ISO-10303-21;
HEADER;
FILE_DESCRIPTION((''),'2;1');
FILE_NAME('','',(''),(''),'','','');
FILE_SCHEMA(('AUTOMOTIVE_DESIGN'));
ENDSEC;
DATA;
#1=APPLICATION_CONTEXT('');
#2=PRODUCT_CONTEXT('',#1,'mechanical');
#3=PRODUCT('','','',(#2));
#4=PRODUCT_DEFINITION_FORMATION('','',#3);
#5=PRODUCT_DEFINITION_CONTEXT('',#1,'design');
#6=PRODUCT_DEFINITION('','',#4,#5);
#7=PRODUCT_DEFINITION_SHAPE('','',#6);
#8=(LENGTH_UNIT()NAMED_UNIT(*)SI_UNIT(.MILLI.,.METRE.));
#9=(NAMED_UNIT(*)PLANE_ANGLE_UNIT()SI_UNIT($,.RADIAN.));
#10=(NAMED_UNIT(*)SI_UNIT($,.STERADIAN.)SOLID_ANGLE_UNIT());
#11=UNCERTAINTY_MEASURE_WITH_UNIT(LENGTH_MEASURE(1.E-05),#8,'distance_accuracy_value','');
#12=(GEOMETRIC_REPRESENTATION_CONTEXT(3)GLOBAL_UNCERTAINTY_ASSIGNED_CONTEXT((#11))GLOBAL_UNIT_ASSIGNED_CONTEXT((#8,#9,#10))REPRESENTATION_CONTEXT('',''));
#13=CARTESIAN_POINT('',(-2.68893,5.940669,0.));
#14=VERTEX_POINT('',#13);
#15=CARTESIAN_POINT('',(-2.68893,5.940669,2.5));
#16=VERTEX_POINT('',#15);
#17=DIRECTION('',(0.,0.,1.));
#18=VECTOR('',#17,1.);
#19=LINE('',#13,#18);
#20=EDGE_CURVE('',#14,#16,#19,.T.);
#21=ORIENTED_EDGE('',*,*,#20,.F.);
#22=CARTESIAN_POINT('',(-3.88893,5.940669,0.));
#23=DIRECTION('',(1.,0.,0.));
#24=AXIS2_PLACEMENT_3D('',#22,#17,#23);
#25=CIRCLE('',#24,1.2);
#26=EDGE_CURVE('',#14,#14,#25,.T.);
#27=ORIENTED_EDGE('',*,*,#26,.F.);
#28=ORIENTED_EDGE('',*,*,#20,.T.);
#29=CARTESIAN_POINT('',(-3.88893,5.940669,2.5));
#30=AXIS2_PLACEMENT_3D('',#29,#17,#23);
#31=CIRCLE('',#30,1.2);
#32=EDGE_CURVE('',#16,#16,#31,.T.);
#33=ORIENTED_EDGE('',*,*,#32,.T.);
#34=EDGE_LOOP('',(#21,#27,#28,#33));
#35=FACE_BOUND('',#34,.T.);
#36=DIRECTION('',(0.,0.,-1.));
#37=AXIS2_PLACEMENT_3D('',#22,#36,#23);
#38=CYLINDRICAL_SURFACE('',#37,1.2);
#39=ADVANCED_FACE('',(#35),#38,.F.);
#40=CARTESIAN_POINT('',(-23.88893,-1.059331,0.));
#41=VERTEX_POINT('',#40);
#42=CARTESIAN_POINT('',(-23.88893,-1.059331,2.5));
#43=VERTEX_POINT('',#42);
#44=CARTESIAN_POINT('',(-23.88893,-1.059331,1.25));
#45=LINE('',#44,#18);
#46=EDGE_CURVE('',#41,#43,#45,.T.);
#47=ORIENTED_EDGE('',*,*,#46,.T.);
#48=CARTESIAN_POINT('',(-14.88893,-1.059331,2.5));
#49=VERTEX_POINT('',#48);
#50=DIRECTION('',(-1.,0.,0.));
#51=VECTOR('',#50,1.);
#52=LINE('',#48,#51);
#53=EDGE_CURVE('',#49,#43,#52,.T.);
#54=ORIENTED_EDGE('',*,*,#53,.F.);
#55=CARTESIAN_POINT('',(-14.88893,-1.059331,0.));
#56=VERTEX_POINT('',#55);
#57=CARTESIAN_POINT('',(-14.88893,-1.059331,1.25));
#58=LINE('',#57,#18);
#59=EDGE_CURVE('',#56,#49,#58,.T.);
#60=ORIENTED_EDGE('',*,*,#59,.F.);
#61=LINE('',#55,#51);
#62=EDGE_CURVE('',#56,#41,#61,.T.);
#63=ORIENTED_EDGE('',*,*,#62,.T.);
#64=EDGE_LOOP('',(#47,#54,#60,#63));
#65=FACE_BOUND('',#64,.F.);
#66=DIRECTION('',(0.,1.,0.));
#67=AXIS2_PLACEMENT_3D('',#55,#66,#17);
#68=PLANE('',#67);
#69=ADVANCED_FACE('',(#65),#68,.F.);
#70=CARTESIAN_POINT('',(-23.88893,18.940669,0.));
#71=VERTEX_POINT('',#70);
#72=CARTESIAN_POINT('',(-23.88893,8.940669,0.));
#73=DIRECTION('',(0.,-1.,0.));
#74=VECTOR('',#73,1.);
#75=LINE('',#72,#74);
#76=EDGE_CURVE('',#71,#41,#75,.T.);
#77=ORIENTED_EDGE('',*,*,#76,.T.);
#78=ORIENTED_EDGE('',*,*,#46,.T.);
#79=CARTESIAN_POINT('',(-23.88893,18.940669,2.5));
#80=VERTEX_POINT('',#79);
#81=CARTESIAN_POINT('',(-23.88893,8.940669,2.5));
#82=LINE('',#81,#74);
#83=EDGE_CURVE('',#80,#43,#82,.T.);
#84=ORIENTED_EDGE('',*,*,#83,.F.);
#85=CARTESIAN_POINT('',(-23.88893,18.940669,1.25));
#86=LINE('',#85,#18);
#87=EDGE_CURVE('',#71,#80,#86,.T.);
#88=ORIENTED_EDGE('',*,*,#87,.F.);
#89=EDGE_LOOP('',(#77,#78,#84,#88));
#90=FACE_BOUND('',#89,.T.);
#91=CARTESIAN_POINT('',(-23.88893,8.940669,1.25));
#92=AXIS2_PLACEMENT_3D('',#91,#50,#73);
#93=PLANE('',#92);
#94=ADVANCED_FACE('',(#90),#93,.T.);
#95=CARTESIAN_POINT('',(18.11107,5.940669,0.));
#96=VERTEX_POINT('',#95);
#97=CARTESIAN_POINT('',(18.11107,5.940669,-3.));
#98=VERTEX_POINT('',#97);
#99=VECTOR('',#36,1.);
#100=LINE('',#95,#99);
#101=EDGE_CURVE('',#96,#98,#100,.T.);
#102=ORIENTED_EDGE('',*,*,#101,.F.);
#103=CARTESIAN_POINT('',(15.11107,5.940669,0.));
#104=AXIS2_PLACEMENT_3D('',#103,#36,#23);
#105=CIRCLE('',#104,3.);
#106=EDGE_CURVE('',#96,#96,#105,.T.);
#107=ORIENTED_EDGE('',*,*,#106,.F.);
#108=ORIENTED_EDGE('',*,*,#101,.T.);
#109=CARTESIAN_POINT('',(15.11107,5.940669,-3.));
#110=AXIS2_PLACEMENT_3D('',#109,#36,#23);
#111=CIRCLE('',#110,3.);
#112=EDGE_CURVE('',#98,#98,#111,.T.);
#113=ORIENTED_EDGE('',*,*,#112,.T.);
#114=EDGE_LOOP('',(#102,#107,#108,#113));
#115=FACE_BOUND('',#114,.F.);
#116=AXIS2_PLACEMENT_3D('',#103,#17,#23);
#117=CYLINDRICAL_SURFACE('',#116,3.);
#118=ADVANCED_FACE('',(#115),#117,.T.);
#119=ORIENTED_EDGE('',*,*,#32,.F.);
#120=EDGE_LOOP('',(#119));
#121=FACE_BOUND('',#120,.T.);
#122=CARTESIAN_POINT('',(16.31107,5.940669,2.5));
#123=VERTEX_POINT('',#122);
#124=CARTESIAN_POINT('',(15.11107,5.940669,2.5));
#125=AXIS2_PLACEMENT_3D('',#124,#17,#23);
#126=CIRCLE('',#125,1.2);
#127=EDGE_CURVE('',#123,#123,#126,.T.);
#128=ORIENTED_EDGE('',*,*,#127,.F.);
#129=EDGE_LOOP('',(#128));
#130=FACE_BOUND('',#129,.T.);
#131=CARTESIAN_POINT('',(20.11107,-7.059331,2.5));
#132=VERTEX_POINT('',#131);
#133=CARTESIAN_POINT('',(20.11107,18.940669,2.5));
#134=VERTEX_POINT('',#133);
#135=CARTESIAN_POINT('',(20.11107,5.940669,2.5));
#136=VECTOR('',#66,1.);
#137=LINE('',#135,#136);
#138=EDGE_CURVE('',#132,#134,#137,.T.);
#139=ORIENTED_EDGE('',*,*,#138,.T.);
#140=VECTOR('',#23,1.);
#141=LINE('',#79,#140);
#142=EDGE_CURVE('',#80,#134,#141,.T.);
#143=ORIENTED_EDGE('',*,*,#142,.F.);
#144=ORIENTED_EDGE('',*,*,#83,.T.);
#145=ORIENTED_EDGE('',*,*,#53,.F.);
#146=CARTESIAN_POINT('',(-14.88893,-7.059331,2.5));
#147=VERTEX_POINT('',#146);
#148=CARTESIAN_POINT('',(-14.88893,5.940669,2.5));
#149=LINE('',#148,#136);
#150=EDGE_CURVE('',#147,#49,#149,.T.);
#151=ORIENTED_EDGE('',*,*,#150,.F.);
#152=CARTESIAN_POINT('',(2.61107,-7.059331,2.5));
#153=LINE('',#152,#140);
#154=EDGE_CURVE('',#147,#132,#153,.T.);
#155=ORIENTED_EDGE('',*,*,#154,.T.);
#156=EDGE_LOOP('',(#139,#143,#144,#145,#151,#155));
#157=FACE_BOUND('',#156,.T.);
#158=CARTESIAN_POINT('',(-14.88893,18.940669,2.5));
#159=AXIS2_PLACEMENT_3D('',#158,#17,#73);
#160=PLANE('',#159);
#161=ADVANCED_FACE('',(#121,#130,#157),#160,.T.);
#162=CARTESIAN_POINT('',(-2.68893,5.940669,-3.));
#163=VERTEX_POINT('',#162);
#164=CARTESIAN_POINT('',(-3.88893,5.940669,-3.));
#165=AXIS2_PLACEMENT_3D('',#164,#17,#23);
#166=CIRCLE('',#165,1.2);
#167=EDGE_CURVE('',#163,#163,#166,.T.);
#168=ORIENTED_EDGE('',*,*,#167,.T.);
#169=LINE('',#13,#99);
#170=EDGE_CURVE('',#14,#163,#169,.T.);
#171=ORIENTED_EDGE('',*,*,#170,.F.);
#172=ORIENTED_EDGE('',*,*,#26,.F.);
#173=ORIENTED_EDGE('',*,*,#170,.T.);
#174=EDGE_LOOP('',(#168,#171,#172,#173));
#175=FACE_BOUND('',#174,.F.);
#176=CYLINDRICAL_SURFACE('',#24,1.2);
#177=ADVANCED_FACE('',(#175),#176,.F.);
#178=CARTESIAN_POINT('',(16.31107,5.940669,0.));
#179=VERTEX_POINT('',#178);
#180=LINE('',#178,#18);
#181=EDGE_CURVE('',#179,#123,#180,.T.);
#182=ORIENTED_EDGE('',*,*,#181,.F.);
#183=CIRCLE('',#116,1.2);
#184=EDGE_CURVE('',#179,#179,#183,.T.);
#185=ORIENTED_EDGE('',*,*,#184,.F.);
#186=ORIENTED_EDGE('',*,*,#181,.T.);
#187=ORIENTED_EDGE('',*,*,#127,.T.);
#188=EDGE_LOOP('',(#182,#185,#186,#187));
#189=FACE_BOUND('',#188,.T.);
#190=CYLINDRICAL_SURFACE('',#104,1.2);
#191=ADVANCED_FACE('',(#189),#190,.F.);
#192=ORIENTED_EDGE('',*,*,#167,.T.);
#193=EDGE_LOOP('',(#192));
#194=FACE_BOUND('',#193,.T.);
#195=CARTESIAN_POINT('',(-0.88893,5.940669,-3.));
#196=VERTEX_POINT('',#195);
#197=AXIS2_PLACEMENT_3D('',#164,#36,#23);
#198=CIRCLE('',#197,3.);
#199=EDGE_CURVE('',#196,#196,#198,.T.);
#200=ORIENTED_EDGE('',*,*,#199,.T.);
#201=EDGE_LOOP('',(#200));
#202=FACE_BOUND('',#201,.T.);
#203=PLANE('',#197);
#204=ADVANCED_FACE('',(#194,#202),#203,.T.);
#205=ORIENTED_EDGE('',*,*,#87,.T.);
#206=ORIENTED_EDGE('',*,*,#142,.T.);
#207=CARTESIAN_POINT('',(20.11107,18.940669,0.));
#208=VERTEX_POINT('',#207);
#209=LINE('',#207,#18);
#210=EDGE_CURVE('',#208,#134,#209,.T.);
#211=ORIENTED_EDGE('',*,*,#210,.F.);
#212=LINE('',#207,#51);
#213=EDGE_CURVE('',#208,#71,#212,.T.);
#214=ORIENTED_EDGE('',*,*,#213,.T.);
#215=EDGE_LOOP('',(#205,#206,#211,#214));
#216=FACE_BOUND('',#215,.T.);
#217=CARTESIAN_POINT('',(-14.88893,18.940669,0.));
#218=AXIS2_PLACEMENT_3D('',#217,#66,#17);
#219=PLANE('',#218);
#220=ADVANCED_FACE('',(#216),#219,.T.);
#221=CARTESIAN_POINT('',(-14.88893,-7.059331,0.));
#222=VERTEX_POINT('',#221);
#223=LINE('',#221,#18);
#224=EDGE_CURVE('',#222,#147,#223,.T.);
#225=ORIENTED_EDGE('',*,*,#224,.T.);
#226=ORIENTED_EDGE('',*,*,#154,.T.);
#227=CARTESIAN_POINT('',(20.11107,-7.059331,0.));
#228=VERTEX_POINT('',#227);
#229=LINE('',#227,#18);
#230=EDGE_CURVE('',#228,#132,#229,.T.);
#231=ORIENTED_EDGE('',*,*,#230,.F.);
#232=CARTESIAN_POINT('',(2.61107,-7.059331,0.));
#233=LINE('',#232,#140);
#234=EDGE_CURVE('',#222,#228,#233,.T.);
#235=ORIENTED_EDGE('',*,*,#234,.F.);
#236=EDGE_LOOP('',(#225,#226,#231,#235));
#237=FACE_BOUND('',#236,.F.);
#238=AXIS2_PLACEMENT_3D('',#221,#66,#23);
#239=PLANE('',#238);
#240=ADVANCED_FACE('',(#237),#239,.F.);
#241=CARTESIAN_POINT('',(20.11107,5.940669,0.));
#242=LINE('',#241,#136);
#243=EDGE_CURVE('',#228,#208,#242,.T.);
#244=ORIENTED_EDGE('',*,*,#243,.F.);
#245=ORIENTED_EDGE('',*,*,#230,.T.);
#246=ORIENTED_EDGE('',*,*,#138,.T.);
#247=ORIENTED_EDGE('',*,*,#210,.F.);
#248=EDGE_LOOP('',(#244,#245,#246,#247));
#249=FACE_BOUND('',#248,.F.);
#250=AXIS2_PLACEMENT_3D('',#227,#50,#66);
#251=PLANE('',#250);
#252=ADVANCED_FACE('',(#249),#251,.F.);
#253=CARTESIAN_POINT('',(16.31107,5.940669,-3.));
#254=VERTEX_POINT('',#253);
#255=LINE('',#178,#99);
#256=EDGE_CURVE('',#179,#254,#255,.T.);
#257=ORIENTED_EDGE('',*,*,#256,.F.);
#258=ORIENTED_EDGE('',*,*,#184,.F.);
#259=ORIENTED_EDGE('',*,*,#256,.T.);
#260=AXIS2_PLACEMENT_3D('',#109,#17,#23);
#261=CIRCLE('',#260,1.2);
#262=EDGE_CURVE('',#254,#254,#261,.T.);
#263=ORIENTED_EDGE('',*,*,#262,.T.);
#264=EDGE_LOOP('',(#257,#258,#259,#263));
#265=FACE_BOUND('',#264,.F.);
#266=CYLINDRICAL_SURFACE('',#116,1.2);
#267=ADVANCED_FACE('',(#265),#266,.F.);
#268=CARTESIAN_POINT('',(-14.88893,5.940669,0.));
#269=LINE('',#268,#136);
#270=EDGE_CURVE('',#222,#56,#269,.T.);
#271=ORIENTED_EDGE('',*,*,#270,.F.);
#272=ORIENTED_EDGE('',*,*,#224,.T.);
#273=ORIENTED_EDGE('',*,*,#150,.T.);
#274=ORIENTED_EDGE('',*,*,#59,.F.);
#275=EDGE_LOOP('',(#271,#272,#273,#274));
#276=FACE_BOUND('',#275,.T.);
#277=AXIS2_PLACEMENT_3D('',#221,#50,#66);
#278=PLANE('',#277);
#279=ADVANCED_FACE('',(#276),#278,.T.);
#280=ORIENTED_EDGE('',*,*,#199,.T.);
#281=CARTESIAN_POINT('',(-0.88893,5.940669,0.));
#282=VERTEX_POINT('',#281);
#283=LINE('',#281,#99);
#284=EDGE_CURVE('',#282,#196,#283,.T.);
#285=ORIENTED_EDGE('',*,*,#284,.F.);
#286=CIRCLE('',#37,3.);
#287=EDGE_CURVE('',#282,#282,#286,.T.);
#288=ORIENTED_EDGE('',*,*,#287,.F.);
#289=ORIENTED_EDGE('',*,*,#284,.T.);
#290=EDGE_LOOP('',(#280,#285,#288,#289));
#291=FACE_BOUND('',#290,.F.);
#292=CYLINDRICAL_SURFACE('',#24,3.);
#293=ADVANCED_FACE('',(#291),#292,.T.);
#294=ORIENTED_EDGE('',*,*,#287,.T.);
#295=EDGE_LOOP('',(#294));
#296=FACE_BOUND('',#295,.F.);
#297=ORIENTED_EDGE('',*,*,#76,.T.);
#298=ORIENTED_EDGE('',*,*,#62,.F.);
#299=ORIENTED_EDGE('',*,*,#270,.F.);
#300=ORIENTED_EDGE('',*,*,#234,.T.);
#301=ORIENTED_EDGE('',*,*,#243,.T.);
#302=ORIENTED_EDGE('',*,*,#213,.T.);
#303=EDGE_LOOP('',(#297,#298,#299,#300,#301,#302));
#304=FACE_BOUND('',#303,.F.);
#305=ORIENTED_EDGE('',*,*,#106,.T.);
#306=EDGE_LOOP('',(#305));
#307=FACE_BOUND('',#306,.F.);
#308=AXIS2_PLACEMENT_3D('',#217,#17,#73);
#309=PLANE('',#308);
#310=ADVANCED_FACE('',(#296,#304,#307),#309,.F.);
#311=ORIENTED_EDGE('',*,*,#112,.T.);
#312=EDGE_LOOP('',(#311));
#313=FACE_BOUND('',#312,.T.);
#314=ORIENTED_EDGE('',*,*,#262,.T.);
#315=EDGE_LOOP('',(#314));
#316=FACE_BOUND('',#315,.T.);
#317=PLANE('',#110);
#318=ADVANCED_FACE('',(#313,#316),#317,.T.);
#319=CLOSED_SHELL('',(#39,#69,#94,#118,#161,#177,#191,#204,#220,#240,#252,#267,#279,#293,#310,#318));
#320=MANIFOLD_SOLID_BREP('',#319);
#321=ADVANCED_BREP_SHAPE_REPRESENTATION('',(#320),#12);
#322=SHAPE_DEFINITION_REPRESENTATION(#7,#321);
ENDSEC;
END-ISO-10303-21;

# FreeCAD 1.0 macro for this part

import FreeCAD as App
import Part
import Sketcher
from FreeCAD import Vector


def add_polygon(sketch, points):
    """Adds a closed chain of lines whose ends are joined by coincident constraints."""
    first, n = sketch.GeometryCount, len(points)
    for a, b in zip(points, points[1:] + points[:1]):
        sketch.addGeometry(Part.LineSegment(App.Vector(*a, 0), App.Vector(*b, 0)), False)
    for i in range(n):
        sketch.addConstraint(Sketcher.Constraint("Coincident", first + i, 2, first + (i + 1) % n, 1))

doc = App.newDocument("Part")
body = doc.addObject("PartDesign::Body", "Body")

sketch1 = body.newObject("Sketcher::SketchObject", "Sketch")
sketch1.AttachmentSupport = (doc.getObject("XY_Plane"), [""])
sketch1.MapMode = "FlatFace"
add_polygon(sketch1, [(-14.88893, 18.940669), (-14.88893, -7.059331), (20.11107, -7.059331), (20.11107, 18.940669)])
sketch1.addGeometry(Part.Circle(Vector(-3.88893, 5.940669, 0), Vector(0, 0, 1), 1.2), False)
sketch1.addGeometry(Part.Circle(Vector(15.11107, 5.940669, 0), Vector(0, 0, 1), 1.2), False)
sketch1.addConstraint([
    Sketcher.Constraint("Vertical", 0),
    Sketcher.Constraint("Horizontal", 1),
    Sketcher.Constraint("Vertical", 2),
    Sketcher.Constraint("Horizontal", 3),
    Sketcher.Constraint("Equal", 4, 5),
    Sketcher.Constraint("Horizontal", 4, 3, 5, 3),
    Sketcher.Constraint("Diameter", 4, 2.4),
    Sketcher.Constraint("DistanceX", 1, 1, 1, 2, 35.0),
    Sketcher.Constraint("DistanceY", 0, 2, 0, 1, 26.0),
    Sketcher.Constraint("DistanceX", 4, 3, 5, 3, 19.0),
    Sketcher.Constraint("DistanceX", 0, 2, 4, 3, 11.0),
    Sketcher.Constraint("DistanceY", 0, 2, 4, 3, 13.0),
    Sketcher.Constraint("DistanceX", 4, 3, -1, 1, 3.88893),
    Sketcher.Constraint("DistanceY", -1, 1, 4, 3, 5.940669),
])
pad1 = body.newObject("PartDesign::Pad", "Pad")
pad1.Profile = sketch1
pad1.Length = 2.5

sketch2 = body.newObject("Sketcher::SketchObject", "Sketch001")
sketch2.AttachmentSupport = (doc.getObject("XY_Plane"), [""])
sketch2.MapMode = "FlatFace"
sketch2.addGeometry([
    Part.Circle(Vector(-3.88893, 5.940669, 0), Vector(0, 0, 1), 3),
    Part.Circle(Vector(15.11107, 5.940669, 0), Vector(0, 0, 1), 3),
], False)
sketch2.addConstraint([
    Sketcher.Constraint("Equal", 0, 1),
    Sketcher.Constraint("Horizontal", 0, 3, 1, 3),
    Sketcher.Constraint("Diameter", 0, 6.0),
    Sketcher.Constraint("DistanceX", 0, 3, 1, 3, 19.0),
    Sketcher.Constraint("DistanceX", 0, 3, -1, 1, 3.88893),
    Sketcher.Constraint("DistanceY", -1, 1, 0, 3, 5.940669),
])
pad2 = body.newObject("PartDesign::Pad", "Pad001")
pad2.Profile = sketch2
pad2.Length = 3
pad2.Reversed = True

sketch3 = body.newObject("Sketcher::SketchObject", "Sketch002")
sketch3.AttachmentSupport = (doc.getObject("XY_Plane"), [""])
sketch3.MapMode = "FlatFace"
sketch3.addGeometry(Part.Circle(Vector(-3.88893, 5.940669, 0), Vector(0, 0, 1), 1.2), False)
sketch3.addConstraint([
    Sketcher.Constraint("Diameter", 0, 2.4),
    Sketcher.Constraint("DistanceX", 0, 3, -1, 1, 3.88893),
    Sketcher.Constraint("DistanceY", -1, 1, 0, 3, 5.940669),
])
pocket1 = body.newObject("PartDesign::Pocket", "Pocket")
pocket1.Profile = sketch3
pocket1.Length = 25

sketch4 = body.newObject("Sketcher::SketchObject", "Sketch003")
sketch4.AttachmentSupport = (doc.getObject("XY_Plane"), [""])
sketch4.MapMode = "FlatFace"
sketch4.addGeometry(Part.Circle(Vector(15.11107, 5.940669, 0), Vector(0, 0, 1), 1.2), False)
sketch4.addConstraint([
    Sketcher.Constraint("Diameter", 0, 2.4),
    Sketcher.Constraint("DistanceX", -1, 1, 0, 3, 15.11107),
    Sketcher.Constraint("DistanceY", -1, 1, 0, 3, 5.940669),
])
pocket2 = body.newObject("PartDesign::Pocket", "Pocket001")
pocket2.Profile = sketch4
pocket2.Length = 25

sketch5 = body.newObject("Sketcher::SketchObject", "Sketch004")
sketch5.AttachmentSupport = (doc.getObject("YZ_Plane"), [""])
sketch5.MapMode = "FlatFace"
sketch5.AttachmentOffset = App.Placement(Vector(0, 0, -14.88893), App.Rotation())
add_polygon(sketch5, [(18.940669, 2.5), (18.940669, 0), (-1.059331, 0), (-1.059331, 2.5)])
sketch5.addConstraint([
    Sketcher.Constraint("Vertical", 0),
    Sketcher.Constraint("Horizontal", 1),
    Sketcher.Constraint("Vertical", 2),
    Sketcher.Constraint("Horizontal", 3),
    Sketcher.Constraint("PointOnObject", 0, 2, -1),
    Sketcher.Constraint("DistanceX", 1, 2, 1, 1, 20.0),
    Sketcher.Constraint("DistanceY", 0, 2, 0, 1, 2.5),
    Sketcher.Constraint("DistanceX", -1, 1, 0, 2, 18.940669),
])
pad3 = body.newObject("PartDesign::Pad", "Pad002")
pad3.Profile = sketch5
pad3.Length = 9
pad3.Reversed = True

doc.recompute()
